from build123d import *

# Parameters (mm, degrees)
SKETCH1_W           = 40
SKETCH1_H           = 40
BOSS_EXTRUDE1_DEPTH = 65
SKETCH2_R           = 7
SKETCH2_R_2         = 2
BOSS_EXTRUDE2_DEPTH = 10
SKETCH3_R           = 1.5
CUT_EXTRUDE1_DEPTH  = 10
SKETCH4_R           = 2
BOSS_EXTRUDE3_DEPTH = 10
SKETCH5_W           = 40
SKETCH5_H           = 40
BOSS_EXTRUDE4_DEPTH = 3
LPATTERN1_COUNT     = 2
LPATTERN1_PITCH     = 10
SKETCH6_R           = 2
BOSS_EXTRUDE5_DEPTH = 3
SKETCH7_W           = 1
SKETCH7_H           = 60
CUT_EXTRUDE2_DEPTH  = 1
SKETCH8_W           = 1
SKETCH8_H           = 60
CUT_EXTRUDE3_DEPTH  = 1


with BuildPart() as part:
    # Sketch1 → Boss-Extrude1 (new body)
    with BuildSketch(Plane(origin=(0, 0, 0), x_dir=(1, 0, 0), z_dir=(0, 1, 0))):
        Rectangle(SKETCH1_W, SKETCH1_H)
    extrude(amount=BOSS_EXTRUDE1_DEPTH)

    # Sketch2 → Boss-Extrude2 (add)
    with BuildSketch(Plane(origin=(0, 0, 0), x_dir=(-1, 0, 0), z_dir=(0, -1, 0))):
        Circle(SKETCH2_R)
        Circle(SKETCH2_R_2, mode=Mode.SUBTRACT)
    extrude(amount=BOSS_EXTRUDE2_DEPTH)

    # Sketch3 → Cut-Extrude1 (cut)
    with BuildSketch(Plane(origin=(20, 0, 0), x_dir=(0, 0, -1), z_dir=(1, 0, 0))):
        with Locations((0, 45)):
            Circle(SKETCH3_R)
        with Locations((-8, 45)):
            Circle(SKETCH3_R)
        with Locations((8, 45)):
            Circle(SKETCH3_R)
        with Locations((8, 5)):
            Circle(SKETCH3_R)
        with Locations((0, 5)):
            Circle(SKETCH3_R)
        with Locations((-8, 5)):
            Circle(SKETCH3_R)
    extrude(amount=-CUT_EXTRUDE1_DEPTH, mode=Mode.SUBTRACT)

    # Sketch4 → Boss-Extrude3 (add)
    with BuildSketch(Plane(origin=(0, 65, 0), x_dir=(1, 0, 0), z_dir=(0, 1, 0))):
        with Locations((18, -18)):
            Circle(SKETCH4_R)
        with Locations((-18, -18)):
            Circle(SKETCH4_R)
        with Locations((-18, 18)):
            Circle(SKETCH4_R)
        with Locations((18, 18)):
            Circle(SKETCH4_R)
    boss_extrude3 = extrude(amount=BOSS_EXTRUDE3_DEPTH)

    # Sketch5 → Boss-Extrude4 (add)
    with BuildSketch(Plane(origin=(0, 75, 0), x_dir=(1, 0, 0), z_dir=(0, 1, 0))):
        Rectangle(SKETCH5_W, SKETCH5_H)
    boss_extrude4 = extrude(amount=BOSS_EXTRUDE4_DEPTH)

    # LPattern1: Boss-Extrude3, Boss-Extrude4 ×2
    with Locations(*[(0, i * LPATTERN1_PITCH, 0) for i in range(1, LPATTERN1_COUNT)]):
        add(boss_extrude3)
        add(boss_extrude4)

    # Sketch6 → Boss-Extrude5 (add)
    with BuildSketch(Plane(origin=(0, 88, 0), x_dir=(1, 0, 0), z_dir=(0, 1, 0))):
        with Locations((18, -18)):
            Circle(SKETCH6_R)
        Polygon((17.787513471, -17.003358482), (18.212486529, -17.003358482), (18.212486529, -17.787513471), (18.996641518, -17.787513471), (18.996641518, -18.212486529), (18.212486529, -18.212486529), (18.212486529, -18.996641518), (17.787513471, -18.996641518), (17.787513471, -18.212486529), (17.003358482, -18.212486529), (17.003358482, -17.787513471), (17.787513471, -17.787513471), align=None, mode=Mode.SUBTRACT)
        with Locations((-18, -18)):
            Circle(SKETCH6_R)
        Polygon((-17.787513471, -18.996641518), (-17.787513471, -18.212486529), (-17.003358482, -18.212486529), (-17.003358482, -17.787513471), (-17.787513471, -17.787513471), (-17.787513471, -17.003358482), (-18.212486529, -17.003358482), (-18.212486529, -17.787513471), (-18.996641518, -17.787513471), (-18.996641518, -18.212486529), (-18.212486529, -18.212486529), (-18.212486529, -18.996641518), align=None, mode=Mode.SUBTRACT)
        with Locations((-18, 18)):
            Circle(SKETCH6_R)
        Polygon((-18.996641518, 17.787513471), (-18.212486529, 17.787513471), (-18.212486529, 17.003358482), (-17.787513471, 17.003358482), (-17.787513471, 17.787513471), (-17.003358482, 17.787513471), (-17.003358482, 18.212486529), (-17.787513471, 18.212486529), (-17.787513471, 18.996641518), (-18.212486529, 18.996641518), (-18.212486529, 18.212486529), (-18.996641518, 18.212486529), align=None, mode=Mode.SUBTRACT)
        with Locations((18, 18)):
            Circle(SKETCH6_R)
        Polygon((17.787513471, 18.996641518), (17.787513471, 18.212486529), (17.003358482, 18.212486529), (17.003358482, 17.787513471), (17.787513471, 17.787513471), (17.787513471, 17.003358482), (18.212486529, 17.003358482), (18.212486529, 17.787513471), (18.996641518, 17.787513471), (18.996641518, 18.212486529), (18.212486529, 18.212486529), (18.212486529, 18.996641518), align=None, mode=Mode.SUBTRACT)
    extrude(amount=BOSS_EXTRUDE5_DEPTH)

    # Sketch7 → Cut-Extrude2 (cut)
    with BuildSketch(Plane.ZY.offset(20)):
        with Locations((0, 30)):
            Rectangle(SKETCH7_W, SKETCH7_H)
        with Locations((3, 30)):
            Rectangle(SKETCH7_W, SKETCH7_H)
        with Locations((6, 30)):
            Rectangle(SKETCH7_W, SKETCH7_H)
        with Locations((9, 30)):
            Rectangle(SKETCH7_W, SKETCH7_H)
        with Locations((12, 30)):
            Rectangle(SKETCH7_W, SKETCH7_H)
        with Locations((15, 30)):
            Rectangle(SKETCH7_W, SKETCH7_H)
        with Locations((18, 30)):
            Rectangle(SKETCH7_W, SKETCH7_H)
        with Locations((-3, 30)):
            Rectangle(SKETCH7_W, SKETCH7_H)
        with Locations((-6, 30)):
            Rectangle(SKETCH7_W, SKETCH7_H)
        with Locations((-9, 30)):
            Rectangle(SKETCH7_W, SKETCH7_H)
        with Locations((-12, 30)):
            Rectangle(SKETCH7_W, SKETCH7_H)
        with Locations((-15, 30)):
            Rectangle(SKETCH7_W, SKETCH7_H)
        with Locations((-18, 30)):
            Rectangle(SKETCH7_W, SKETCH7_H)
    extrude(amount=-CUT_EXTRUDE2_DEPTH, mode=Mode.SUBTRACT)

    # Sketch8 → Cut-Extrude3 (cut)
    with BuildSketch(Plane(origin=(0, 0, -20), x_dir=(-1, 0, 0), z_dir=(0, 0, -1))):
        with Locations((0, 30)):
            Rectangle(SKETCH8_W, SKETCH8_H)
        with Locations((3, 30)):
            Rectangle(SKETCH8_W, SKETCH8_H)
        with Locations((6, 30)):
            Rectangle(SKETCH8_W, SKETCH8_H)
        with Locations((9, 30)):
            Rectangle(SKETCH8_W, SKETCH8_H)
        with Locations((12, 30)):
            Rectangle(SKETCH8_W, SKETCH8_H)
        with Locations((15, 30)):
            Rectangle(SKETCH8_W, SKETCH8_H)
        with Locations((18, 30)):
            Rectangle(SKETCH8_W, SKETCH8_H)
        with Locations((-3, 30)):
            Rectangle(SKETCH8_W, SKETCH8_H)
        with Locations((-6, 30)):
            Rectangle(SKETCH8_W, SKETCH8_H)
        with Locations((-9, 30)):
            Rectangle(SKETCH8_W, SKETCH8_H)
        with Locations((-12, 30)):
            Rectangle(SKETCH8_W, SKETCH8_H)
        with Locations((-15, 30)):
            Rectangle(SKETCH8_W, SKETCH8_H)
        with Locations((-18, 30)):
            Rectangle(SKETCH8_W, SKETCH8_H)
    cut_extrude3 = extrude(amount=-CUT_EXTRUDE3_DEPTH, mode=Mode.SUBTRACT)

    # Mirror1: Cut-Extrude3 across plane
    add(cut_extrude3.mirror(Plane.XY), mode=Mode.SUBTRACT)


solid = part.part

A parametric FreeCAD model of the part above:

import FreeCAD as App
import Part
import Sketcher

V = App.Vector
Q = App.Units.Quantity

doc = App.newDocument("Part")
body = doc.addObject("PartDesign::Body", "Body")

# Sketch on XZ plane
sketch1 = body.newObject("Sketcher::SketchObject", "Sketch")
sketch1.AttachmentSupport = (doc.getObject("XZ_Plane"), [""])
sketch1.MapMode = "FlatFace"
sketch1.addGeometry([
    Part.LineSegment(V(-20, -20, 0), V(-20, 20, 0)),
    Part.LineSegment(V(-20, 20, 0), V(20, 20, 0)),
    Part.LineSegment(V(20, 20, 0), V(20, -20, 0)),
    Part.LineSegment(V(20, -20, 0), V(-20, -20, 0)),
], False)
sketch1.addConstraint([
    Sketcher.Constraint("Coincident", 0, 2, 1, 1),
    Sketcher.Constraint("Coincident", 1, 2, 2, 1),
    Sketcher.Constraint("Coincident", 2, 2, 3, 1),
    Sketcher.Constraint("Coincident", 3, 2, 0, 1),
    Sketcher.Constraint("Vertical", 0),
    Sketcher.Constraint("Horizontal", 1),
    Sketcher.Constraint("Vertical", 2),
    Sketcher.Constraint("Horizontal", 3),
    Sketcher.Constraint("Symmetric", 0, 2, 2, 2, -1, 1),
    Sketcher.Constraint("Equal", 3, 0),
    Sketcher.Constraint("DistanceX", 1, 1, 1, 2, Q("40 mm")),
])
pad1 = body.newObject("PartDesign::Pad", "Pad")
pad1.Profile = sketch1
pad1.Length = 65
pad1.Reversed = True

# Sketch on XZ plane
sketch2 = body.newObject("Sketcher::SketchObject", "Sketch001")
sketch2.AttachmentSupport = (doc.getObject("XZ_Plane"), [""])
sketch2.MapMode = "FlatFace"
sketch2.addGeometry([
    Part.Circle(V(0, 0, 0), V(0, 0, 1), 7),
    Part.Circle(V(0, 0, 0), V(0, 0, 1), 2),
], False)
sketch2.addConstraint([
    Sketcher.Constraint("Coincident", 0, 3, -1, 1),
    Sketcher.Constraint("Coincident", 1, 3, -1, 1),
    Sketcher.Constraint("Diameter", 0, Q("14 mm")),
    Sketcher.Constraint("Diameter", 1, Q("4 mm")),
])
pad2 = body.newObject("PartDesign::Pad", "Pad001")
pad2.Profile = sketch2
pad2.Length = 10

# Sketch on YZ plane
sketch3 = body.newObject("Sketcher::SketchObject", "Sketch002")
sketch3.AttachmentSupport = (doc.getObject("YZ_Plane"), [""])
sketch3.MapMode = "FlatFace"
sketch3.AttachmentOffset = App.Placement(V(0, 0, 20), App.Rotation())
sketch3.addGeometry([
    Part.Circle(V(45, 0, 0), V(0, 0, 1), 1.5),  # 0
    Part.Circle(V(45, 8, 0), V(0, 0, 1), 1.5),  # 1
    Part.Circle(V(45, -8, 0), V(0, 0, 1), 1.5),  # 2
    Part.Circle(V(5, -8, 0), V(0, 0, 1), 1.5),  # 3
    Part.Circle(V(5, 0, 0), V(0, 0, 1), 1.5),  # 4
    Part.Circle(V(5, 8, 0), V(0, 0, 1), 1.5),  # 5
], False)
sketch3.addConstraint([
    Sketcher.Constraint("Equal", 0, 1),
    Sketcher.Constraint("Equal", 1, 2),
    Sketcher.Constraint("Equal", 2, 3),
    Sketcher.Constraint("Equal", 3, 4),
    Sketcher.Constraint("Equal", 4, 5),
    Sketcher.Constraint("Symmetric", 1, 3, 2, 3, -1),
    Sketcher.Constraint("Symmetric", 3, 3, 5, 3, -1),
    Sketcher.Constraint("PointOnObject", 0, 3, -1),
    Sketcher.Constraint("PointOnObject", 4, 3, -1),
    Sketcher.Constraint("Horizontal", 2, 3, 3, 3),
    Sketcher.Constraint("Vertical", 0, 3, 1, 3),
    Sketcher.Constraint("Vertical", 3, 3, 4, 3),
    Sketcher.Constraint("Diameter", 0, Q("3 mm")),
    Sketcher.Constraint("DistanceX", -1, 1, 0, 3, Q("45 mm")),
    Sketcher.Constraint("DistanceY", -1, 1, 1, 3, Q("8 mm")),
    Sketcher.Constraint("DistanceX", -1, 1, 3, 3, Q("5 mm")),
])
pocket1 = body.newObject("PartDesign::Pocket", "Pocket")
pocket1.Profile = sketch3
pocket1.Length = 10

# Sketch on XZ plane
sketch4 = body.newObject("Sketcher::SketchObject", "Sketch003")
sketch4.AttachmentSupport = (doc.getObject("XZ_Plane"), [""])
sketch4.MapMode = "FlatFace"
sketch4.AttachmentOffset = App.Placement(V(0, 0, -65), App.Rotation())
sketch4.addGeometry([
    Part.Circle(V(18, 18, 0), V(0, 0, 1), 2),
    Part.Circle(V(-18, 18, 0), V(0, 0, 1), 2),
    Part.Circle(V(-18, -18, 0), V(0, 0, 1), 2),
    Part.Circle(V(18, -18, 0), V(0, 0, 1), 2),
], False)
sketch4.addConstraint([
    Sketcher.Constraint("Equal", 0, 1),
    Sketcher.Constraint("Equal", 1, 2),
    Sketcher.Constraint("Equal", 2, 3),
    Sketcher.Constraint("Symmetric", 0, 3, 2, 3, -1, 1),
    Sketcher.Constraint("Symmetric", 1, 3, 3, 3, -1, 1),
    Sketcher.Constraint("Symmetric", 0, 3, 1, 3, -2),
    Sketcher.Constraint("Diameter", 0, Q("4 mm")),
    Sketcher.Constraint("DistanceX", -1, 1, 0, 3, Q("18 mm")),
    Sketcher.Constraint("DistanceY", -1, 1, 0, 3, Q("18 mm")),
])
pad3 = body.newObject("PartDesign::Pad", "Pad002")
pad3.Profile = sketch4
pad3.Length = 10
pad3.Reversed = True

# Sketch on XZ plane
sketch5 = body.newObject("Sketcher::SketchObject", "Sketch004")
sketch5.AttachmentSupport = (doc.getObject("XZ_Plane"), [""])
sketch5.MapMode = "FlatFace"
sketch5.AttachmentOffset = App.Placement(V(0, 0, -75), App.Rotation())
sketch5.addGeometry([
    Part.LineSegment(V(-20, -20, 0), V(-20, 20, 0)),
    Part.LineSegment(V(-20, 20, 0), V(20, 20, 0)),
    Part.LineSegment(V(20, 20, 0), V(20, -20, 0)),
    Part.LineSegment(V(20, -20, 0), V(-20, -20, 0)),
], False)
sketch5.addConstraint([
    Sketcher.Constraint("Coincident", 0, 2, 1, 1),
    Sketcher.Constraint("Coincident", 1, 2, 2, 1),
    Sketcher.Constraint("Coincident", 2, 2, 3, 1),
    Sketcher.Constraint("Coincident", 3, 2, 0, 1),
    Sketcher.Constraint("Vertical", 0),
    Sketcher.Constraint("Horizontal", 1),
    Sketcher.Constraint("Vertical", 2),
    Sketcher.Constraint("Horizontal", 3),
    Sketcher.Constraint("Symmetric", 0, 2, 2, 2, -1, 1),
    Sketcher.Constraint("Equal", 3, 0),
    Sketcher.Constraint("DistanceX", 1, 1, 1, 2, Q("40 mm")),
])
pad4 = body.newObject("PartDesign::Pad", "Pad003")
pad4.Profile = sketch5
pad4.Length = 3
pad4.Reversed = True
doc.recompute()

linearpattern = body.newObject("PartDesign::LinearPattern", "LinearPattern")
linearpattern.Originals = [pad3, pad4]
linearpattern.Direction = (doc.getObject("Y_Axis"), [""])
linearpattern.Mode = "offset"
linearpattern.Offset = 10
linearpattern.Occurrences = 2
body.Tip = linearpattern

# Sketch on XZ plane
sketch6 = body.newObject("Sketcher::SketchObject", "Sketch005")
sketch6.AttachmentSupport = (doc.getObject("XZ_Plane"), [""])
sketch6.MapMode = "FlatFace"
sketch6.AttachmentOffset = App.Placement(V(0, 0, -88), App.Rotation())
sketch6.addGeometry([
    Part.Circle(V(18, 18, 0), V(0, 0, 1), 2),  # 0
    Part.LineSegment(V(17.79, 17.79, 0), V(17.79, 17, 0)),  # 1
    Part.LineSegment(V(17.79, 17, 0), V(18.21, 17, 0)),  # 2
    Part.LineSegment(V(18.21, 17, 0), V(18.21, 17.79, 0)),  # 3
    Part.LineSegment(V(18.21, 17.79, 0), V(19, 17.79, 0)),  # 4
    Part.LineSegment(V(19, 17.79, 0), V(19, 18.21, 0)),  # 5
    Part.LineSegment(V(19, 18.21, 0), V(18.21, 18.21, 0)),  # 6
    Part.LineSegment(V(18.21, 18.21, 0), V(18.21, 19, 0)),  # 7
    Part.LineSegment(V(18.21, 19, 0), V(17.79, 19, 0)),  # 8
    Part.LineSegment(V(17.79, 19, 0), V(17.79, 18.21, 0)),  # 9
    Part.LineSegment(V(17.79, 18.21, 0), V(17, 18.21, 0)),  # 10
    Part.LineSegment(V(17, 18.21, 0), V(17, 17.79, 0)),  # 11
    Part.LineSegment(V(17, 17.79, 0), V(17.79, 17.79, 0)),  # 12
    Part.Circle(V(-18, 18, 0), V(0, 0, 1), 2),  # 13
    Part.LineSegment(V(-17.79, 18.21, 0), V(-17.79, 19, 0)),  # 14
    Part.LineSegment(V(-17.79, 19, 0), V(-18.21, 19, 0)),  # 15
    Part.LineSegment(V(-18.21, 19, 0), V(-18.21, 18.21, 0)),  # 16
    Part.LineSegment(V(-18.21, 18.21, 0), V(-19, 18.21, 0)),  # 17
    Part.LineSegment(V(-19, 18.21, 0), V(-19, 17.79, 0)),  # 18
    Part.LineSegment(V(-19, 17.79, 0), V(-18.21, 17.79, 0)),  # 19
    Part.LineSegment(V(-18.21, 17.79, 0), V(-18.21, 17, 0)),  # 20
    Part.LineSegment(V(-18.21, 17, 0), V(-17.79, 17, 0)),  # 21
    Part.LineSegment(V(-17.79, 17, 0), V(-17.79, 17.79, 0)),  # 22
    Part.LineSegment(V(-17.79, 17.79, 0), V(-17, 17.79, 0)),  # 23
    Part.LineSegment(V(-17, 17.79, 0), V(-17, 18.21, 0)),  # 24
    Part.LineSegment(V(-17, 18.21, 0), V(-17.79, 18.21, 0)),  # 25
    Part.Circle(V(-18, -18, 0), V(0, 0, 1), 2),  # 26
    Part.LineSegment(V(-18.21, -17.79, 0), V(-19, -17.79, 0)),  # 27
    Part.LineSegment(V(-19, -17.79, 0), V(-19, -18.21, 0)),  # 28
    Part.LineSegment(V(-19, -18.21, 0), V(-18.21, -18.21, 0)),  # 29
    Part.LineSegment(V(-18.21, -18.21, 0), V(-18.21, -19, 0)),  # 30
    Part.LineSegment(V(-18.21, -19, 0), V(-17.79, -19, 0)),  # 31
    Part.LineSegment(V(-17.79, -19, 0), V(-17.79, -18.21, 0)),  # 32
    Part.LineSegment(V(-17.79, -18.21, 0), V(-17, -18.21, 0)),  # 33
    Part.LineSegment(V(-17, -18.21, 0), V(-17, -17.79, 0)),  # 34
    Part.LineSegment(V(-17, -17.79, 0), V(-17.79, -17.79, 0)),  # 35
    Part.LineSegment(V(-17.79, -17.79, 0), V(-17.79, -17, 0)),  # 36
    Part.LineSegment(V(-17.79, -17, 0), V(-18.21, -17, 0)),  # 37
    Part.LineSegment(V(-18.21, -17, 0), V(-18.21, -17.79, 0)),  # 38
    Part.Circle(V(18, -18, 0), V(0, 0, 1), 2),  # 39
    Part.LineSegment(V(17.79, -18.21, 0), V(17.79, -19, 0)),  # 40
    Part.LineSegment(V(17.79, -19, 0), V(18.21, -19, 0)),  # 41
    Part.LineSegment(V(18.21, -19, 0), V(18.21, -18.21, 0)),  # 42
    Part.LineSegment(V(18.21, -18.21, 0), V(19, -18.21, 0)),  # 43
    Part.LineSegment(V(19, -18.21, 0), V(19, -17.79, 0)),  # 44
    Part.LineSegment(V(19, -17.79, 0), V(18.21, -17.79, 0)),  # 45
    Part.LineSegment(V(18.21, -17.79, 0), V(18.21, -17, 0)),  # 46
    Part.LineSegment(V(18.21, -17, 0), V(17.79, -17, 0)),  # 47
    Part.LineSegment(V(17.79, -17, 0), V(17.79, -17.79, 0)),  # 48
    Part.LineSegment(V(17.79, -17.79, 0), V(17, -17.79, 0)),  # 49
    Part.LineSegment(V(17, -17.79, 0), V(17, -18.21, 0)),  # 50
    Part.LineSegment(V(17, -18.21, 0), V(17.79, -18.21, 0)),  # 51
], False)
sketch6.addConstraint([
    Sketcher.Constraint("Coincident", 1, 2, 2, 1),
    Sketcher.Constraint("Coincident", 2, 2, 3, 1),
    Sketcher.Constraint("Coincident", 3, 2, 4, 1),
    Sketcher.Constraint("Coincident", 4, 2, 5, 1),
    Sketcher.Constraint("Coincident", 5, 2, 6, 1),
    Sketcher.Constraint("Coincident", 6, 2, 7, 1),
    Sketcher.Constraint("Coincident", 7, 2, 8, 1),
    Sketcher.Constraint("Coincident", 8, 2, 9, 1),
    Sketcher.Constraint("Coincident", 9, 2, 10, 1),
    Sketcher.Constraint("Coincident", 10, 2, 11, 1),
    Sketcher.Constraint("Coincident", 11, 2, 12, 1),
    Sketcher.Constraint("Coincident", 12, 2, 1, 1),
    Sketcher.Constraint("Coincident", 14, 2, 15, 1),
    Sketcher.Constraint("Coincident", 15, 2, 16, 1),
    Sketcher.Constraint("Coincident", 16, 2, 17, 1),
    Sketcher.Constraint("Coincident", 17, 2, 18, 1),
    Sketcher.Constraint("Coincident", 18, 2, 19, 1),
    Sketcher.Constraint("Coincident", 19, 2, 20, 1),
    Sketcher.Constraint("Coincident", 20, 2, 21, 1),
    Sketcher.Constraint("Coincident", 21, 2, 22, 1),
    Sketcher.Constraint("Coincident", 22, 2, 23, 1),
    Sketcher.Constraint("Coincident", 23, 2, 24, 1),
    Sketcher.Constraint("Coincident", 24, 2, 25, 1),
    Sketcher.Constraint("Coincident", 25, 2, 14, 1),
    Sketcher.Constraint("Coincident", 27, 2, 28, 1),
    Sketcher.Constraint("Coincident", 28, 2, 29, 1),
    Sketcher.Constraint("Coincident", 29, 2, 30, 1),
    Sketcher.Constraint("Coincident", 30, 2, 31, 1),
    Sketcher.Constraint("Coincident", 31, 2, 32, 1),
    Sketcher.Constraint("Coincident", 32, 2, 33, 1),
    Sketcher.Constraint("Coincident", 33, 2, 34, 1),
    Sketcher.Constraint("Coincident", 34, 2, 35, 1),
    Sketcher.Constraint("Coincident", 35, 2, 36, 1),
    Sketcher.Constraint("Coincident", 36, 2, 37, 1),
    Sketcher.Constraint("Coincident", 37, 2, 38, 1),
    Sketcher.Constraint("Coincident", 38, 2, 27, 1),
    Sketcher.Constraint("Coincident", 40, 2, 41, 1),
    Sketcher.Constraint("Coincident", 41, 2, 42, 1),
    Sketcher.Constraint("Coincident", 42, 2, 43, 1),
    Sketcher.Constraint("Coincident", 43, 2, 44, 1),
    Sketcher.Constraint("Coincident", 44, 2, 45, 1),
    Sketcher.Constraint("Coincident", 45, 2, 46, 1),
    Sketcher.Constraint("Coincident", 46, 2, 47, 1),
    Sketcher.Constraint("Coincident", 47, 2, 48, 1),
    Sketcher.Constraint("Coincident", 48, 2, 49, 1),
    Sketcher.Constraint("Coincident", 49, 2, 50, 1),
    Sketcher.Constraint("Coincident", 50, 2, 51, 1),
    Sketcher.Constraint("Coincident", 51, 2, 40, 1),
    Sketcher.Constraint("Vertical", 1),
    Sketcher.Constraint("Horizontal", 2),
    Sketcher.Constraint("Vertical", 3),
    Sketcher.Constraint("Horizontal", 4),
    Sketcher.Constraint("Vertical", 5),
    Sketcher.Constraint("Horizontal", 6),
    Sketcher.Constraint("Vertical", 7),
    Sketcher.Constraint("Horizontal", 8),
    Sketcher.Constraint("Vertical", 9),
    Sketcher.Constraint("Horizontal", 10),
    Sketcher.Constraint("Vertical", 11),
    Sketcher.Constraint("Horizontal", 12),
    Sketcher.Constraint("Vertical", 14),
    Sketcher.Constraint("Horizontal", 15),
    Sketcher.Constraint("Vertical", 16),
    Sketcher.Constraint("Horizontal", 17),
    Sketcher.Constraint("Vertical", 18),
    Sketcher.Constraint("Horizontal", 19),
    Sketcher.Constraint("Vertical", 20),
    Sketcher.Constraint("Horizontal", 21),
    Sketcher.Constraint("Vertical", 22),
    Sketcher.Constraint("Horizontal", 23),
    Sketcher.Constraint("Vertical", 24),
    Sketcher.Constraint("Horizontal", 25),
    Sketcher.Constraint("Horizontal", 27),
    Sketcher.Constraint("Vertical", 28),
    Sketcher.Constraint("Horizontal", 29),
    Sketcher.Constraint("Vertical", 30),
    Sketcher.Constraint("Horizontal", 31),
    Sketcher.Constraint("Vertical", 32),
    Sketcher.Constraint("Horizontal", 33),
    Sketcher.Constraint("Vertical", 34),
    Sketcher.Constraint("Horizontal", 35),
    Sketcher.Constraint("Vertical", 36),
    Sketcher.Constraint("Horizontal", 37),
    Sketcher.Constraint("Vertical", 38),
    Sketcher.Constraint("Vertical", 40),
    Sketcher.Constraint("Horizontal", 41),
    Sketcher.Constraint("Vertical", 42),
    Sketcher.Constraint("Horizontal", 43),
    Sketcher.Constraint("Vertical", 44),
    Sketcher.Constraint("Horizontal", 45),
    Sketcher.Constraint("Vertical", 46),
    Sketcher.Constraint("Horizontal", 47),
    Sketcher.Constraint("Vertical", 48),
    Sketcher.Constraint("Horizontal", 49),
    Sketcher.Constraint("Vertical", 50),
    Sketcher.Constraint("Horizontal", 51),
    Sketcher.Constraint("Equal", 0, 13),
    Sketcher.Constraint("Equal", 13, 26),
    Sketcher.Constraint("Equal", 26, 39),
    Sketcher.Constraint("Symmetric", 0, 3, 26, 3, -1, 1),
    Sketcher.Constraint("Symmetric", 13, 3, 39, 3, -1, 1),
    Sketcher.Constraint("Symmetric", 4, 2, 27, 2, -1, 1),
    Sketcher.Constraint("Symmetric", 6, 2, 29, 2, -1, 1),
    Sketcher.Constraint("Symmetric", 8, 2, 31, 2, -1, 1),
    Sketcher.Constraint("Symmetric", 10, 2, 33, 2, -1, 1),
    Sketcher.Constraint("Symmetric", 12, 2, 35, 2, -1, 1),
    Sketcher.Constraint("Symmetric", 2, 2, 37, 2, -1, 1),
    Sketcher.Constraint("Symmetric", 14, 2, 40, 2, -1, 1),
    Sketcher.Constraint("Symmetric", 16, 2, 42, 2, -1, 1),
    Sketcher.Constraint("Symmetric", 18, 2, 44, 2, -1, 1),
    Sketcher.Constraint("Symmetric", 20, 2, 46, 2, -1, 1),
    Sketcher.Constraint("Symmetric", 22, 2, 48, 2, -1, 1),
    Sketcher.Constraint("Symmetric", 24, 2, 50, 2, -1, 1),
    Sketcher.Constraint("Symmetric", 0, 3, 13, 3, -2),
    Sketcher.Constraint("Symmetric", 8, 2, 14, 2, -2),
    Sketcher.Constraint("Symmetric", 6, 2, 16, 2, -2),
    Sketcher.Constraint("Symmetric", 4, 2, 18, 2, -2),
    Sketcher.Constraint("Symmetric", 2, 2, 20, 2, -2),
    Sketcher.Constraint("Symmetric", 12, 2, 22, 2, -2),
    Sketcher.Constraint("Symmetric", 10, 2, 24, 2, -2),
    Sketcher.Constraint("Horizontal", 6, 2, 9, 2),
    Sketcher.Constraint("Horizontal", 4, 2, 11, 2),
    Sketcher.Constraint("Vertical", 3, 2, 6, 2),
    Sketcher.Constraint("Vertical", 1, 2, 8, 2),
    Sketcher.Constraint("Equal", 6, 10),
    Sketcher.Constraint("Equal", 51, 1),
    Sketcher.Constraint("Equal", 47, 5),
    Sketcher.Constraint("Equal", 3, 7),
    Sketcher.Constraint("Diameter", 0, Q("4 mm")),
    Sketcher.Constraint("DistanceX", -1, 1, 0, 3, Q("18 mm")),
    Sketcher.Constraint("DistanceY", -1, 1, 0, 3, Q("18 mm")),
    Sketcher.Constraint("DistanceX", 15, 2, 8, 2, Q("36 mm")),
    Sketcher.Constraint("DistanceY", 28, 2, 18, 2, Q("36 mm")),
    Sketcher.Constraint("DistanceX", 2, 1, 2, 2, Q("0.424973 mm")),
    Sketcher.Constraint("DistanceX", 4, 1, 4, 2, Q("0.784155 mm")),
])
pad5 = body.newObject("PartDesign::Pad", "Pad004")
pad5.Profile = sketch6
pad5.Length = 3
pad5.Reversed = True

# Sketch on YZ plane
sketch7 = body.newObject("Sketcher::SketchObject", "Sketch006")
sketch7.AttachmentSupport = (doc.getObject("YZ_Plane"), [""])
sketch7.MapMode = "FlatFace"
sketch7.AttachmentOffset = App.Placement(V(0, 0, -20), App.Rotation())
sketch7.addGeometry([
    Part.LineSegment(V(60, -0.5, 0), V(0, -0.5, 0)),  # 0
    Part.LineSegment(V(0, -0.5, 0), V(0, 0.5, 0)),  # 1
    Part.LineSegment(V(0, 0.5, 0), V(60, 0.5, 0)),  # 2
    Part.LineSegment(V(60, 0.5, 0), V(60, -0.5, 0)),  # 3
    Part.LineSegment(V(60, 2.5, 0), V(0, 2.5, 0)),  # 4
    Part.LineSegment(V(0, 2.5, 0), V(0, 3.5, 0)),  # 5
    Part.LineSegment(V(0, 3.5, 0), V(60, 3.5, 0)),  # 6
    Part.LineSegment(V(60, 3.5, 0), V(60, 2.5, 0)),  # 7
    Part.LineSegment(V(60, 5.5, 0), V(0, 5.5, 0)),  # 8
    Part.LineSegment(V(0, 5.5, 0), V(0, 6.5, 0)),  # 9
    Part.LineSegment(V(0, 6.5, 0), V(60, 6.5, 0)),  # 10
    Part.LineSegment(V(60, 6.5, 0), V(60, 5.5, 0)),  # 11
    Part.LineSegment(V(60, 8.5, 0), V(0, 8.5, 0)),  # 12
    Part.LineSegment(V(0, 8.5, 0), V(0, 9.5, 0)),  # 13
    Part.LineSegment(V(0, 9.5, 0), V(60, 9.5, 0)),  # 14
    Part.LineSegment(V(60, 9.5, 0), V(60, 8.5, 0)),  # 15
    Part.LineSegment(V(60, 11.5, 0), V(0, 11.5, 0)),  # 16
    Part.LineSegment(V(0, 11.5, 0), V(0, 12.5, 0)),  # 17
    Part.LineSegment(V(0, 12.5, 0), V(60, 12.5, 0)),  # 18
    Part.LineSegment(V(60, 12.5, 0), V(60, 11.5, 0)),  # 19
    Part.LineSegment(V(60, 14.5, 0), V(0, 14.5, 0)),  # 20
    Part.LineSegment(V(0, 14.5, 0), V(0, 15.5, 0)),  # 21
    Part.LineSegment(V(0, 15.5, 0), V(60, 15.5, 0)),  # 22
    Part.LineSegment(V(60, 15.5, 0), V(60, 14.5, 0)),  # 23
    Part.LineSegment(V(60, 17.5, 0), V(0, 17.5, 0)),  # 24
    Part.LineSegment(V(0, 17.5, 0), V(0, 18.5, 0)),  # 25
    Part.LineSegment(V(0, 18.5, 0), V(60, 18.5, 0)),  # 26
    Part.LineSegment(V(60, 18.5, 0), V(60, 17.5, 0)),  # 27
    Part.LineSegment(V(60, -3.5, 0), V(0, -3.5, 0)),  # 28
    Part.LineSegment(V(0, -3.5, 0), V(0, -2.5, 0)),  # 29
    Part.LineSegment(V(0, -2.5, 0), V(60, -2.5, 0)),  # 30
    Part.LineSegment(V(60, -2.5, 0), V(60, -3.5, 0)),  # 31
    Part.LineSegment(V(60, -6.5, 0), V(0, -6.5, 0)),  # 32
    Part.LineSegment(V(0, -6.5, 0), V(0, -5.5, 0)),  # 33
    Part.LineSegment(V(0, -5.5, 0), V(60, -5.5, 0)),  # 34
    Part.LineSegment(V(60, -5.5, 0), V(60, -6.5, 0)),  # 35
    Part.LineSegment(V(60, -9.5, 0), V(0, -9.5, 0)),  # 36
    Part.LineSegment(V(0, -9.5, 0), V(0, -8.5, 0)),  # 37
    Part.LineSegment(V(0, -8.5, 0), V(60, -8.5, 0)),  # 38
    Part.LineSegment(V(60, -8.5, 0), V(60, -9.5, 0)),  # 39
    Part.LineSegment(V(60, -12.5, 0), V(0, -12.5, 0)),  # 40
    Part.LineSegment(V(0, -12.5, 0), V(0, -11.5, 0)),  # 41
    Part.LineSegment(V(0, -11.5, 0), V(60, -11.5, 0)),  # 42
    Part.LineSegment(V(60, -11.5, 0), V(60, -12.5, 0)),  # 43
    Part.LineSegment(V(60, -15.5, 0), V(0, -15.5, 0)),  # 44
    Part.LineSegment(V(0, -15.5, 0), V(0, -14.5, 0)),  # 45
    Part.LineSegment(V(0, -14.5, 0), V(60, -14.5, 0)),  # 46
    Part.LineSegment(V(60, -14.5, 0), V(60, -15.5, 0)),  # 47
    Part.LineSegment(V(60, -18.5, 0), V(0, -18.5, 0)),  # 48
    Part.LineSegment(V(0, -18.5, 0), V(0, -17.5, 0)),  # 49
    Part.LineSegment(V(0, -17.5, 0), V(60, -17.5, 0)),  # 50
    Part.LineSegment(V(60, -17.5, 0), V(60, -18.5, 0)),  # 51
], False)
sketch7.addConstraint([
    Sketcher.Constraint("Coincident", 0, 2, 1, 1),
    Sketcher.Constraint("Coincident", 1, 2, 2, 1),
    Sketcher.Constraint("Coincident", 2, 2, 3, 1),
    Sketcher.Constraint("Coincident", 3, 2, 0, 1),
    Sketcher.Constraint("Coincident", 4, 2, 5, 1),
    Sketcher.Constraint("Coincident", 5, 2, 6, 1),
    Sketcher.Constraint("Coincident", 6, 2, 7, 1),
    Sketcher.Constraint("Coincident", 7, 2, 4, 1),
    Sketcher.Constraint("Coincident", 8, 2, 9, 1),
    Sketcher.Constraint("Coincident", 9, 2, 10, 1),
    Sketcher.Constraint("Coincident", 10, 2, 11, 1),
    Sketcher.Constraint("Coincident", 11, 2, 8, 1),
    Sketcher.Constraint("Coincident", 12, 2, 13, 1),
    Sketcher.Constraint("Coincident", 13, 2, 14, 1),
    Sketcher.Constraint("Coincident", 14, 2, 15, 1),
    Sketcher.Constraint("Coincident", 15, 2, 12, 1),
    Sketcher.Constraint("Coincident", 16, 2, 17, 1),
    Sketcher.Constraint("Coincident", 17, 2, 18, 1),
    Sketcher.Constraint("Coincident", 18, 2, 19, 1),
    Sketcher.Constraint("Coincident", 19, 2, 16, 1),
    Sketcher.Constraint("Coincident", 20, 2, 21, 1),
    Sketcher.Constraint("Coincident", 21, 2, 22, 1),
    Sketcher.Constraint("Coincident", 22, 2, 23, 1),
    Sketcher.Constraint("Coincident", 23, 2, 20, 1),
    Sketcher.Constraint("Coincident", 24, 2, 25, 1),
    Sketcher.Constraint("Coincident", 25, 2, 26, 1),
    Sketcher.Constraint("Coincident", 26, 2, 27, 1),
    Sketcher.Constraint("Coincident", 27, 2, 24, 1),
    Sketcher.Constraint("Coincident", 28, 2, 29, 1),
    Sketcher.Constraint("Coincident", 29, 2, 30, 1),
    Sketcher.Constraint("Coincident", 30, 2, 31, 1),
    Sketcher.Constraint("Coincident", 31, 2, 28, 1),
    Sketcher.Constraint("Coincident", 32, 2, 33, 1),
    Sketcher.Constraint("Coincident", 33, 2, 34, 1),
    Sketcher.Constraint("Coincident", 34, 2, 35, 1),
    Sketcher.Constraint("Coincident", 35, 2, 32, 1),
    Sketcher.Constraint("Coincident", 36, 2, 37, 1),
    Sketcher.Constraint("Coincident", 37, 2, 38, 1),
    Sketcher.Constraint("Coincident", 38, 2, 39, 1),
    Sketcher.Constraint("Coincident", 39, 2, 36, 1),
    Sketcher.Constraint("Coincident", 40, 2, 41, 1),
    Sketcher.Constraint("Coincident", 41, 2, 42, 1),
    Sketcher.Constraint("Coincident", 42, 2, 43, 1),
    Sketcher.Constraint("Coincident", 43, 2, 40, 1),
    Sketcher.Constraint("Coincident", 44, 2, 45, 1),
    Sketcher.Constraint("Coincident", 45, 2, 46, 1),
    Sketcher.Constraint("Coincident", 46, 2, 47, 1),
    Sketcher.Constraint("Coincident", 47, 2, 44, 1),
    Sketcher.Constraint("Coincident", 48, 2, 49, 1),
    Sketcher.Constraint("Coincident", 49, 2, 50, 1),
    Sketcher.Constraint("Coincident", 50, 2, 51, 1),
    Sketcher.Constraint("Coincident", 51, 2, 48, 1),
    Sketcher.Constraint("Horizontal", 0),
    Sketcher.Constraint("Vertical", 1),
    Sketcher.Constraint("Horizontal", 2),
    Sketcher.Constraint("Vertical", 3),
    Sketcher.Constraint("Horizontal", 4),
    Sketcher.Constraint("Vertical", 5),
    Sketcher.Constraint("Horizontal", 6),
    Sketcher.Constraint("Vertical", 7),
    Sketcher.Constraint("Horizontal", 8),
    Sketcher.Constraint("Vertical", 9),
    Sketcher.Constraint("Horizontal", 10),
    Sketcher.Constraint("Vertical", 11),
    Sketcher.Constraint("Horizontal", 12),
    Sketcher.Constraint("Vertical", 13),
    Sketcher.Constraint("Horizontal", 14),
    Sketcher.Constraint("Vertical", 15),
    Sketcher.Constraint("Horizontal", 16),
    Sketcher.Constraint("Vertical", 17),
    Sketcher.Constraint("Horizontal", 18),
    Sketcher.Constraint("Vertical", 19),
    Sketcher.Constraint("Horizontal", 20),
    Sketcher.Constraint("Vertical", 21),
    Sketcher.Constraint("Horizontal", 22),
    Sketcher.Constraint("Vertical", 23),
    Sketcher.Constraint("Horizontal", 24),
    Sketcher.Constraint("Vertical", 25),
    Sketcher.Constraint("Horizontal", 26),
    Sketcher.Constraint("Vertical", 27),
    Sketcher.Constraint("Horizontal", 28),
    Sketcher.Constraint("Vertical", 29),
    Sketcher.Constraint("Horizontal", 30),
    Sketcher.Constraint("Vertical", 31),
    Sketcher.Constraint("Horizontal", 32),
    Sketcher.Constraint("Vertical", 33),
    Sketcher.Constraint("Horizontal", 34),
    Sketcher.Constraint("Vertical", 35),
    Sketcher.Constraint("Horizontal", 36),
    Sketcher.Constraint("Vertical", 37),
    Sketcher.Constraint("Horizontal", 38),
    Sketcher.Constraint("Vertical", 39),
    Sketcher.Constraint("Horizontal", 40),
    Sketcher.Constraint("Vertical", 41),
    Sketcher.Constraint("Horizontal", 42),
    Sketcher.Constraint("Vertical", 43),
    Sketcher.Constraint("Horizontal", 44),
    Sketcher.Constraint("Vertical", 45),
    Sketcher.Constraint("Horizontal", 46),
    Sketcher.Constraint("Vertical", 47),
    Sketcher.Constraint("Horizontal", 48),
    Sketcher.Constraint("Vertical", 49),
    Sketcher.Constraint("Horizontal", 50),
    Sketcher.Constraint("Vertical", 51),
    Sketcher.Constraint("Symmetric", 0, 2, 1, 2, -1, 1),
    Sketcher.Constraint("Symmetric", 5, 2, 28, 2, -1, 1),
    Sketcher.Constraint("Symmetric", 9, 2, 32, 2, -1, 1),
    Sketcher.Constraint("Symmetric", 13, 2, 36, 2, -1, 1),
    Sketcher.Constraint("Symmetric", 17, 2, 40, 2, -1, 1),
    Sketcher.Constraint("Symmetric", 21, 2, 44, 2, -1, 1),
    Sketcher.Constraint("Symmetric", 25, 2, 48, 2, -1, 1),
    Sketcher.Constraint("Symmetric", 4, 2, 29, 2, -1),
    Sketcher.Constraint("Symmetric", 8, 2, 33, 2, -1),
    Sketcher.Constraint("Symmetric", 12, 2, 37, 2, -1),
    Sketcher.Constraint("Symmetric", 16, 2, 41, 2, -1),
    Sketcher.Constraint("Symmetric", 20, 2, 45, 2, -1),
    Sketcher.Constraint("Symmetric", 24, 2, 49, 2, -1),
    Sketcher.Constraint("Vertical", 3, 2, 6, 2),
    Sketcher.Constraint("Vertical", 7, 2, 10, 2),
    Sketcher.Constraint("Vertical", 11, 2, 14, 2),
    Sketcher.Constraint("Vertical", 15, 2, 18, 2),
    Sketcher.Constraint("Vertical", 19, 2, 22, 2),
    Sketcher.Constraint("Vertical", 23, 2, 26, 2),
    Sketcher.Constraint("Vertical", 27, 2, 30, 2),
    Sketcher.Constraint("Vertical", 31, 2, 34, 2),
    Sketcher.Constraint("Vertical", 35, 2, 38, 2),
    Sketcher.Constraint("Vertical", 39, 2, 42, 2),
    Sketcher.Constraint("Vertical", 43, 2, 46, 2),
    Sketcher.Constraint("Vertical", 47, 2, 50, 2),
    Sketcher.Constraint("Equal", 3, 5),
    Sketcher.Constraint("Equal", 7, 9),
    Sketcher.Constraint("Equal", 11, 13),
    Sketcher.Constraint("Equal", 15, 17),
    Sketcher.Constraint("Equal", 19, 21),
    Sketcher.Constraint("Equal", 23, 25),
    Sketcher.Constraint("DistanceX", 0, 2, 0, 1, Q("60 mm")),
    Sketcher.Constraint("DistanceY", 1, 1, 1, 2, Q("1 mm")),
    Sketcher.Constraint("DistanceY", 1, 2, 4, 2, Q("2 mm")),
    Sketcher.Constraint("DistanceY", 5, 2, 8, 2, Q("2 mm")),
    Sketcher.Constraint("DistanceY", 9, 2, 12, 2, Q("2 mm")),
    Sketcher.Constraint("DistanceY", 13, 2, 16, 2, Q("2 mm")),
    Sketcher.Constraint("DistanceY", 17, 2, 20, 2, Q("2 mm")),
    Sketcher.Constraint("DistanceY", 21, 2, 24, 2, Q("2 mm")),
])
pocket2 = body.newObject("PartDesign::Pocket", "Pocket001")
pocket2.Profile = sketch7
pocket2.Length = 1
pocket2.Reversed = True

# Sketch on XY plane
sketch8 = body.newObject("Sketcher::SketchObject", "Sketch007")
sketch8.AttachmentSupport = (doc.getObject("XY_Plane"), [""])
sketch8.MapMode = "FlatFace"
sketch8.AttachmentOffset = App.Placement(V(0, 0, -20), App.Rotation())
sketch8.addGeometry([
    Part.LineSegment(V(0.5, 60, 0), V(0.5, 0, 0)),  # 0
    Part.LineSegment(V(0.5, 0, 0), V(-0.5, 0, 0)),  # 1
    Part.LineSegment(V(-0.5, 0, 0), V(-0.5, 60, 0)),  # 2
    Part.LineSegment(V(-0.5, 60, 0), V(0.5, 60, 0)),  # 3
    Part.LineSegment(V(-2.5, 60, 0), V(-2.5, 0, 0)),  # 4
    Part.LineSegment(V(-2.5, 0, 0), V(-3.5, 0, 0)),  # 5
    Part.LineSegment(V(-3.5, 0, 0), V(-3.5, 60, 0)),  # 6
    Part.LineSegment(V(-3.5, 60, 0), V(-2.5, 60, 0)),  # 7
    Part.LineSegment(V(-5.5, 60, 0), V(-5.5, 0, 0)),  # 8
    Part.LineSegment(V(-5.5, 0, 0), V(-6.5, 0, 0)),  # 9
    Part.LineSegment(V(-6.5, 0, 0), V(-6.5, 60, 0)),  # 10
    Part.LineSegment(V(-6.5, 60, 0), V(-5.5, 60, 0)),  # 11
    Part.LineSegment(V(-8.5, 60, 0), V(-8.5, 0, 0)),  # 12
    Part.LineSegment(V(-8.5, 0, 0), V(-9.5, 0, 0)),  # 13
    Part.LineSegment(V(-9.5, 0, 0), V(-9.5, 60, 0)),  # 14
    Part.LineSegment(V(-9.5, 60, 0), V(-8.5, 60, 0)),  # 15
    Part.LineSegment(V(-11.5, 60, 0), V(-11.5, 0, 0)),  # 16
    Part.LineSegment(V(-11.5, 0, 0), V(-12.5, 0, 0)),  # 17
    Part.LineSegment(V(-12.5, 0, 0), V(-12.5, 60, 0)),  # 18
    Part.LineSegment(V(-12.5, 60, 0), V(-11.5, 60, 0)),  # 19
    Part.LineSegment(V(-14.5, 60, 0), V(-14.5, 0, 0)),  # 20
    Part.LineSegment(V(-14.5, 0, 0), V(-15.5, 0, 0)),  # 21
    Part.LineSegment(V(-15.5, 0, 0), V(-15.5, 60, 0)),  # 22
    Part.LineSegment(V(-15.5, 60, 0), V(-14.5, 60, 0)),  # 23
    Part.LineSegment(V(-17.5, 60, 0), V(-17.5, 0, 0)),  # 24
    Part.LineSegment(V(-17.5, 0, 0), V(-18.5, 0, 0)),  # 25
    Part.LineSegment(V(-18.5, 0, 0), V(-18.5, 60, 0)),  # 26
    Part.LineSegment(V(-18.5, 60, 0), V(-17.5, 60, 0)),  # 27
    Part.LineSegment(V(3.5, 60, 0), V(3.5, 0, 0)),  # 28
    Part.LineSegment(V(3.5, 0, 0), V(2.5, 0, 0)),  # 29
    Part.LineSegment(V(2.5, 0, 0), V(2.5, 60, 0)),  # 30
    Part.LineSegment(V(2.5, 60, 0), V(3.5, 60, 0)),  # 31
    Part.LineSegment(V(6.5, 60, 0), V(6.5, 0, 0)),  # 32
    Part.LineSegment(V(6.5, 0, 0), V(5.5, 0, 0)),  # 33
    Part.LineSegment(V(5.5, 0, 0), V(5.5, 60, 0)),  # 34
    Part.LineSegment(V(5.5, 60, 0), V(6.5, 60, 0)),  # 35
    Part.LineSegment(V(9.5, 60, 0), V(9.5, 0, 0)),  # 36
    Part.LineSegment(V(9.5, 0, 0), V(8.5, 0, 0)),  # 37
    Part.LineSegment(V(8.5, 0, 0), V(8.5, 60, 0)),  # 38
    Part.LineSegment(V(8.5, 60, 0), V(9.5, 60, 0)),  # 39
    Part.LineSegment(V(12.5, 60, 0), V(12.5, 0, 0)),  # 40
    Part.LineSegment(V(12.5, 0, 0), V(11.5, 0, 0)),  # 41
    Part.LineSegment(V(11.5, 0, 0), V(11.5, 60, 0)),  # 42
    Part.LineSegment(V(11.5, 60, 0), V(12.5, 60, 0)),  # 43
    Part.LineSegment(V(15.5, 60, 0), V(15.5, 0, 0)),  # 44
    Part.LineSegment(V(15.5, 0, 0), V(14.5, 0, 0)),  # 45
    Part.LineSegment(V(14.5, 0, 0), V(14.5, 60, 0)),  # 46
    Part.LineSegment(V(14.5, 60, 0), V(15.5, 60, 0)),  # 47
    Part.LineSegment(V(18.5, 60, 0), V(18.5, 0, 0)),  # 48
    Part.LineSegment(V(18.5, 0, 0), V(17.5, 0, 0)),  # 49
    Part.LineSegment(V(17.5, 0, 0), V(17.5, 60, 0)),  # 50
    Part.LineSegment(V(17.5, 60, 0), V(18.5, 60, 0)),  # 51
], False)
sketch8.addConstraint([
    Sketcher.Constraint("Coincident", 0, 2, 1, 1),
    Sketcher.Constraint("Coincident", 1, 2, 2, 1),
    Sketcher.Constraint("Coincident", 2, 2, 3, 1),
    Sketcher.Constraint("Coincident", 3, 2, 0, 1),
    Sketcher.Constraint("Coincident", 4, 2, 5, 1),
    Sketcher.Constraint("Coincident", 5, 2, 6, 1),
    Sketcher.Constraint("Coincident", 6, 2, 7, 1),
    Sketcher.Constraint("Coincident", 7, 2, 4, 1),
    Sketcher.Constraint("Coincident", 8, 2, 9, 1),
    Sketcher.Constraint("Coincident", 9, 2, 10, 1),
    Sketcher.Constraint("Coincident", 10, 2, 11, 1),
    Sketcher.Constraint("Coincident", 11, 2, 8, 1),
    Sketcher.Constraint("Coincident", 12, 2, 13, 1),
    Sketcher.Constraint("Coincident", 13, 2, 14, 1),
    Sketcher.Constraint("Coincident", 14, 2, 15, 1),
    Sketcher.Constraint("Coincident", 15, 2, 12, 1),
    Sketcher.Constraint("Coincident", 16, 2, 17, 1),
    Sketcher.Constraint("Coincident", 17, 2, 18, 1),
    Sketcher.Constraint("Coincident", 18, 2, 19, 1),
    Sketcher.Constraint("Coincident", 19, 2, 16, 1),
    Sketcher.Constraint("Coincident", 20, 2, 21, 1),
    Sketcher.Constraint("Coincident", 21, 2, 22, 1),
    Sketcher.Constraint("Coincident", 22, 2, 23, 1),
    Sketcher.Constraint("Coincident", 23, 2, 20, 1),
    Sketcher.Constraint("Coincident", 24, 2, 25, 1),
    Sketcher.Constraint("Coincident", 25, 2, 26, 1),
    Sketcher.Constraint("Coincident", 26, 2, 27, 1),
    Sketcher.Constraint("Coincident", 27, 2, 24, 1),
    Sketcher.Constraint("Coincident", 28, 2, 29, 1),
    Sketcher.Constraint("Coincident", 29, 2, 30, 1),
    Sketcher.Constraint("Coincident", 30, 2, 31, 1),
    Sketcher.Constraint("Coincident", 31, 2, 28, 1),
    Sketcher.Constraint("Coincident", 32, 2, 33, 1),
    Sketcher.Constraint("Coincident", 33, 2, 34, 1),
    Sketcher.Constraint("Coincident", 34, 2, 35, 1),
    Sketcher.Constraint("Coincident", 35, 2, 32, 1),
    Sketcher.Constraint("Coincident", 36, 2, 37, 1),
    Sketcher.Constraint("Coincident", 37, 2, 38, 1),
    Sketcher.Constraint("Coincident", 38, 2, 39, 1),
    Sketcher.Constraint("Coincident", 39, 2, 36, 1),
    Sketcher.Constraint("Coincident", 40, 2, 41, 1),
    Sketcher.Constraint("Coincident", 41, 2, 42, 1),
    Sketcher.Constraint("Coincident", 42, 2, 43, 1),
    Sketcher.Constraint("Coincident", 43, 2, 40, 1),
    Sketcher.Constraint("Coincident", 44, 2, 45, 1),
    Sketcher.Constraint("Coincident", 45, 2, 46, 1),
    Sketcher.Constraint("Coincident", 46, 2, 47, 1),
    Sketcher.Constraint("Coincident", 47, 2, 44, 1),
    Sketcher.Constraint("Coincident", 48, 2, 49, 1),
    Sketcher.Constraint("Coincident", 49, 2, 50, 1),
    Sketcher.Constraint("Coincident", 50, 2, 51, 1),
    Sketcher.Constraint("Coincident", 51, 2, 48, 1),
    Sketcher.Constraint("Vertical", 0),
    Sketcher.Constraint("Horizontal", 1),
    Sketcher.Constraint("Vertical", 2),
    Sketcher.Constraint("Horizontal", 3),
    Sketcher.Constraint("Vertical", 4),
    Sketcher.Constraint("Horizontal", 5),
    Sketcher.Constraint("Vertical", 6),
    Sketcher.Constraint("Horizontal", 7),
    Sketcher.Constraint("Vertical", 8),
    Sketcher.Constraint("Horizontal", 9),
    Sketcher.Constraint("Vertical", 10),
    Sketcher.Constraint("Horizontal", 11),
    Sketcher.Constraint("Vertical", 12),
    Sketcher.Constraint("Horizontal", 13),
    Sketcher.Constraint("Vertical", 14),
    Sketcher.Constraint("Horizontal", 15),
    Sketcher.Constraint("Vertical", 16),
    Sketcher.Constraint("Horizontal", 17),
    Sketcher.Constraint("Vertical", 18),
    Sketcher.Constraint("Horizontal", 19),
    Sketcher.Constraint("Vertical", 20),
    Sketcher.Constraint("Horizontal", 21),
    Sketcher.Constraint("Vertical", 22),
    Sketcher.Constraint("Horizontal", 23),
    Sketcher.Constraint("Vertical", 24),
    Sketcher.Constraint("Horizontal", 25),
    Sketcher.Constraint("Vertical", 26),
    Sketcher.Constraint("Horizontal", 27),
    Sketcher.Constraint("Vertical", 28),
    Sketcher.Constraint("Horizontal", 29),
    Sketcher.Constraint("Vertical", 30),
    Sketcher.Constraint("Horizontal", 31),
    Sketcher.Constraint("Vertical", 32),
    Sketcher.Constraint("Horizontal", 33),
    Sketcher.Constraint("Vertical", 34),
    Sketcher.Constraint("Horizontal", 35),
    Sketcher.Constraint("Vertical", 36),
    Sketcher.Constraint("Horizontal", 37),
    Sketcher.Constraint("Vertical", 38),
    Sketcher.Constraint("Horizontal", 39),
    Sketcher.Constraint("Vertical", 40),
    Sketcher.Constraint("Horizontal", 41),
    Sketcher.Constraint("Vertical", 42),
    Sketcher.Constraint("Horizontal", 43),
    Sketcher.Constraint("Vertical", 44),
    Sketcher.Constraint("Horizontal", 45),
    Sketcher.Constraint("Vertical", 46),
    Sketcher.Constraint("Horizontal", 47),
    Sketcher.Constraint("Vertical", 48),
    Sketcher.Constraint("Horizontal", 49),
    Sketcher.Constraint("Vertical", 50),
    Sketcher.Constraint("Horizontal", 51),
    Sketcher.Constraint("Symmetric", 0, 2, 1, 2, -1, 1),
    Sketcher.Constraint("Symmetric", 5, 2, 28, 2, -1, 1),
    Sketcher.Constraint("Symmetric", 9, 2, 32, 2, -1, 1),
    Sketcher.Constraint("Symmetric", 13, 2, 36, 2, -1, 1),
    Sketcher.Constraint("Symmetric", 17, 2, 40, 2, -1, 1),
    Sketcher.Constraint("Symmetric", 21, 2, 44, 2, -1, 1),
    Sketcher.Constraint("Symmetric", 25, 2, 48, 2, -1, 1),
    Sketcher.Constraint("Symmetric", 4, 2, 29, 2, -2),
    Sketcher.Constraint("Symmetric", 8, 2, 33, 2, -2),
    Sketcher.Constraint("Symmetric", 12, 2, 37, 2, -2),
    Sketcher.Constraint("Symmetric", 16, 2, 41, 2, -2),
    Sketcher.Constraint("Symmetric", 20, 2, 45, 2, -2),
    Sketcher.Constraint("Symmetric", 24, 2, 49, 2, -2),
    Sketcher.Constraint("Horizontal", 3, 2, 6, 2),
    Sketcher.Constraint("Horizontal", 7, 2, 10, 2),
    Sketcher.Constraint("Horizontal", 11, 2, 14, 2),
    Sketcher.Constraint("Horizontal", 15, 2, 18, 2),
    Sketcher.Constraint("Horizontal", 19, 2, 22, 2),
    Sketcher.Constraint("Horizontal", 23, 2, 26, 2),
    Sketcher.Constraint("Horizontal", 27, 2, 30, 2),
    Sketcher.Constraint("Horizontal", 31, 2, 34, 2),
    Sketcher.Constraint("Horizontal", 35, 2, 38, 2),
    Sketcher.Constraint("Horizontal", 39, 2, 42, 2),
    Sketcher.Constraint("Horizontal", 43, 2, 46, 2),
    Sketcher.Constraint("Horizontal", 47, 2, 50, 2),
    Sketcher.Constraint("Equal", 3, 5),
    Sketcher.Constraint("Equal", 7, 9),
    Sketcher.Constraint("Equal", 11, 13),
    Sketcher.Constraint("Equal", 15, 17),
    Sketcher.Constraint("Equal", 19, 21),
    Sketcher.Constraint("Equal", 23, 25),
    Sketcher.Constraint("DistanceX", 1, 2, 1, 1, Q("1 mm")),
    Sketcher.Constraint("DistanceY", 0, 2, 0, 1, Q("60 mm")),
    Sketcher.Constraint("DistanceX", 4, 2, 1, 2, Q("2 mm")),
    Sketcher.Constraint("DistanceX", 8, 2, 5, 2, Q("2 mm")),
    Sketcher.Constraint("DistanceX", 12, 2, 9, 2, Q("2 mm")),
    Sketcher.Constraint("DistanceX", 16, 2, 13, 2, Q("2 mm")),
    Sketcher.Constraint("DistanceX", 20, 2, 17, 2, Q("2 mm")),
    Sketcher.Constraint("DistanceX", 24, 2, 21, 2, Q("2 mm")),
])
pocket3 = body.newObject("PartDesign::Pocket", "Pocket002")
pocket3.Profile = sketch8
pocket3.Length = 1
pocket3.Reversed = True
doc.recompute()

mirrored = body.newObject("PartDesign::Mirrored", "Mirrored")
mirrored.Originals = [pocket3]
mirrored.MirrorPlane = (doc.getObject("XY_Plane"), [""])
body.Tip = mirrored

doc.recompute()
